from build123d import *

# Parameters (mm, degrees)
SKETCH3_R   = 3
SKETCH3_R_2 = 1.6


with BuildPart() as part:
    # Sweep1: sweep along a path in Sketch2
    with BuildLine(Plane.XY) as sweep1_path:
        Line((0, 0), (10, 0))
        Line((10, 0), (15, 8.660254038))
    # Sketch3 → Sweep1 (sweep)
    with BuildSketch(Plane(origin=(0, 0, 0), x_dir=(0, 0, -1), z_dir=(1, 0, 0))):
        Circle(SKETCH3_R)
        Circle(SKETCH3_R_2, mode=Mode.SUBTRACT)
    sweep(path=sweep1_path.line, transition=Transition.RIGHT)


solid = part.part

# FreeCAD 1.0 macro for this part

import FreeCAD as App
import Part
import Sketcher
from FreeCAD import Vector
Q = App.Units.Quantity

doc = App.newDocument("Part")
params = doc.addObject("Spreadsheet::Sheet", "Params")
for row, (alias, value) in enumerate([
    ("sketch1_diameter", "6 mm"),
    ("sketch1_diameter2", "3.2 mm"),
    ("sketch2_width", "10 mm"),
    ("sketch2_length", "10 mm"),
], start=1):
    params.set(f"A{row}", alias)
    params.set(f"B{row}", "=" + value)
    params.setAlias(f"B{row}", alias)

body = doc.addObject("PartDesign::Body", "Body")

# Sketch on YZ plane
sketch1 = body.newObject("Sketcher::SketchObject", "Sketch")
sketch1.AttachmentSupport = (doc.getObject("YZ_Plane"), [""])
sketch1.MapMode = "FlatFace"
sketch1.addGeometry(Part.Circle(Vector(0, 0, 0), Vector(0, 0, 1), 3), False)
sketch1.addGeometry(Part.Circle(Vector(0, 0, 0), Vector(0, 0, 1), 1.6), False)
sketch1.addConstraint(Sketcher.Constraint("Coincident", 0, 3, -1, 1))
sketch1.addConstraint(Sketcher.Constraint("Coincident", 1, 3, -1, 1))
sketch1.addConstraint(Sketcher.Constraint("Diameter", 0, Q("6 mm")))
sketch1.addConstraint(Sketcher.Constraint("Diameter", 1, Q("3.2 mm")))
sketch1.setExpression("Constraints[2]", "Params.sketch1_diameter")
sketch1.setExpression("Constraints[3]", "Params.sketch1_diameter2")

# Sketch on XY plane
sketch2 = body.newObject("Sketcher::SketchObject", "Sketch001")
sketch2.AttachmentSupport = (doc.getObject("XY_Plane"), [""])
sketch2.MapMode = "FlatFace"
sketch2.addGeometry(Part.LineSegment(Vector(0, 0, 0), Vector(10, 0, 0)), False)
sketch2.addGeometry(Part.LineSegment(Vector(10, 0, 0), Vector(15, 9, 0)), False)
sketch2.addConstraint(Sketcher.Constraint("Coincident", 0, 2, 1, 1))
sketch2.addConstraint(Sketcher.Constraint("Horizontal", 0))
sketch2.addConstraint(Sketcher.Constraint("Coincident", 0, 1, -1, 1))
sketch2.addConstraint(Sketcher.Constraint("DistanceX", 0, 1, 0, 2, Q("10 mm")))
sketch2.addConstraint(Sketcher.Constraint("Angle", 1, Q("60 deg")))
sketch2.addConstraint(Sketcher.Constraint("Distance", 1, Q("10 mm")))
sketch2.setExpression("Constraints[3]", "Params.sketch2_width")
sketch2.setExpression("Constraints[5]", "Params.sketch2_length")
doc.recompute()

additivepipe = body.newObject("PartDesign::AdditivePipe", "AdditivePipe")
additivepipe.Profile = sketch1
additivepipe.Spine = (sketch2, ["Edge1", "Edge2"])
additivepipe.Transition = "Right corner"

doc.recompute()
